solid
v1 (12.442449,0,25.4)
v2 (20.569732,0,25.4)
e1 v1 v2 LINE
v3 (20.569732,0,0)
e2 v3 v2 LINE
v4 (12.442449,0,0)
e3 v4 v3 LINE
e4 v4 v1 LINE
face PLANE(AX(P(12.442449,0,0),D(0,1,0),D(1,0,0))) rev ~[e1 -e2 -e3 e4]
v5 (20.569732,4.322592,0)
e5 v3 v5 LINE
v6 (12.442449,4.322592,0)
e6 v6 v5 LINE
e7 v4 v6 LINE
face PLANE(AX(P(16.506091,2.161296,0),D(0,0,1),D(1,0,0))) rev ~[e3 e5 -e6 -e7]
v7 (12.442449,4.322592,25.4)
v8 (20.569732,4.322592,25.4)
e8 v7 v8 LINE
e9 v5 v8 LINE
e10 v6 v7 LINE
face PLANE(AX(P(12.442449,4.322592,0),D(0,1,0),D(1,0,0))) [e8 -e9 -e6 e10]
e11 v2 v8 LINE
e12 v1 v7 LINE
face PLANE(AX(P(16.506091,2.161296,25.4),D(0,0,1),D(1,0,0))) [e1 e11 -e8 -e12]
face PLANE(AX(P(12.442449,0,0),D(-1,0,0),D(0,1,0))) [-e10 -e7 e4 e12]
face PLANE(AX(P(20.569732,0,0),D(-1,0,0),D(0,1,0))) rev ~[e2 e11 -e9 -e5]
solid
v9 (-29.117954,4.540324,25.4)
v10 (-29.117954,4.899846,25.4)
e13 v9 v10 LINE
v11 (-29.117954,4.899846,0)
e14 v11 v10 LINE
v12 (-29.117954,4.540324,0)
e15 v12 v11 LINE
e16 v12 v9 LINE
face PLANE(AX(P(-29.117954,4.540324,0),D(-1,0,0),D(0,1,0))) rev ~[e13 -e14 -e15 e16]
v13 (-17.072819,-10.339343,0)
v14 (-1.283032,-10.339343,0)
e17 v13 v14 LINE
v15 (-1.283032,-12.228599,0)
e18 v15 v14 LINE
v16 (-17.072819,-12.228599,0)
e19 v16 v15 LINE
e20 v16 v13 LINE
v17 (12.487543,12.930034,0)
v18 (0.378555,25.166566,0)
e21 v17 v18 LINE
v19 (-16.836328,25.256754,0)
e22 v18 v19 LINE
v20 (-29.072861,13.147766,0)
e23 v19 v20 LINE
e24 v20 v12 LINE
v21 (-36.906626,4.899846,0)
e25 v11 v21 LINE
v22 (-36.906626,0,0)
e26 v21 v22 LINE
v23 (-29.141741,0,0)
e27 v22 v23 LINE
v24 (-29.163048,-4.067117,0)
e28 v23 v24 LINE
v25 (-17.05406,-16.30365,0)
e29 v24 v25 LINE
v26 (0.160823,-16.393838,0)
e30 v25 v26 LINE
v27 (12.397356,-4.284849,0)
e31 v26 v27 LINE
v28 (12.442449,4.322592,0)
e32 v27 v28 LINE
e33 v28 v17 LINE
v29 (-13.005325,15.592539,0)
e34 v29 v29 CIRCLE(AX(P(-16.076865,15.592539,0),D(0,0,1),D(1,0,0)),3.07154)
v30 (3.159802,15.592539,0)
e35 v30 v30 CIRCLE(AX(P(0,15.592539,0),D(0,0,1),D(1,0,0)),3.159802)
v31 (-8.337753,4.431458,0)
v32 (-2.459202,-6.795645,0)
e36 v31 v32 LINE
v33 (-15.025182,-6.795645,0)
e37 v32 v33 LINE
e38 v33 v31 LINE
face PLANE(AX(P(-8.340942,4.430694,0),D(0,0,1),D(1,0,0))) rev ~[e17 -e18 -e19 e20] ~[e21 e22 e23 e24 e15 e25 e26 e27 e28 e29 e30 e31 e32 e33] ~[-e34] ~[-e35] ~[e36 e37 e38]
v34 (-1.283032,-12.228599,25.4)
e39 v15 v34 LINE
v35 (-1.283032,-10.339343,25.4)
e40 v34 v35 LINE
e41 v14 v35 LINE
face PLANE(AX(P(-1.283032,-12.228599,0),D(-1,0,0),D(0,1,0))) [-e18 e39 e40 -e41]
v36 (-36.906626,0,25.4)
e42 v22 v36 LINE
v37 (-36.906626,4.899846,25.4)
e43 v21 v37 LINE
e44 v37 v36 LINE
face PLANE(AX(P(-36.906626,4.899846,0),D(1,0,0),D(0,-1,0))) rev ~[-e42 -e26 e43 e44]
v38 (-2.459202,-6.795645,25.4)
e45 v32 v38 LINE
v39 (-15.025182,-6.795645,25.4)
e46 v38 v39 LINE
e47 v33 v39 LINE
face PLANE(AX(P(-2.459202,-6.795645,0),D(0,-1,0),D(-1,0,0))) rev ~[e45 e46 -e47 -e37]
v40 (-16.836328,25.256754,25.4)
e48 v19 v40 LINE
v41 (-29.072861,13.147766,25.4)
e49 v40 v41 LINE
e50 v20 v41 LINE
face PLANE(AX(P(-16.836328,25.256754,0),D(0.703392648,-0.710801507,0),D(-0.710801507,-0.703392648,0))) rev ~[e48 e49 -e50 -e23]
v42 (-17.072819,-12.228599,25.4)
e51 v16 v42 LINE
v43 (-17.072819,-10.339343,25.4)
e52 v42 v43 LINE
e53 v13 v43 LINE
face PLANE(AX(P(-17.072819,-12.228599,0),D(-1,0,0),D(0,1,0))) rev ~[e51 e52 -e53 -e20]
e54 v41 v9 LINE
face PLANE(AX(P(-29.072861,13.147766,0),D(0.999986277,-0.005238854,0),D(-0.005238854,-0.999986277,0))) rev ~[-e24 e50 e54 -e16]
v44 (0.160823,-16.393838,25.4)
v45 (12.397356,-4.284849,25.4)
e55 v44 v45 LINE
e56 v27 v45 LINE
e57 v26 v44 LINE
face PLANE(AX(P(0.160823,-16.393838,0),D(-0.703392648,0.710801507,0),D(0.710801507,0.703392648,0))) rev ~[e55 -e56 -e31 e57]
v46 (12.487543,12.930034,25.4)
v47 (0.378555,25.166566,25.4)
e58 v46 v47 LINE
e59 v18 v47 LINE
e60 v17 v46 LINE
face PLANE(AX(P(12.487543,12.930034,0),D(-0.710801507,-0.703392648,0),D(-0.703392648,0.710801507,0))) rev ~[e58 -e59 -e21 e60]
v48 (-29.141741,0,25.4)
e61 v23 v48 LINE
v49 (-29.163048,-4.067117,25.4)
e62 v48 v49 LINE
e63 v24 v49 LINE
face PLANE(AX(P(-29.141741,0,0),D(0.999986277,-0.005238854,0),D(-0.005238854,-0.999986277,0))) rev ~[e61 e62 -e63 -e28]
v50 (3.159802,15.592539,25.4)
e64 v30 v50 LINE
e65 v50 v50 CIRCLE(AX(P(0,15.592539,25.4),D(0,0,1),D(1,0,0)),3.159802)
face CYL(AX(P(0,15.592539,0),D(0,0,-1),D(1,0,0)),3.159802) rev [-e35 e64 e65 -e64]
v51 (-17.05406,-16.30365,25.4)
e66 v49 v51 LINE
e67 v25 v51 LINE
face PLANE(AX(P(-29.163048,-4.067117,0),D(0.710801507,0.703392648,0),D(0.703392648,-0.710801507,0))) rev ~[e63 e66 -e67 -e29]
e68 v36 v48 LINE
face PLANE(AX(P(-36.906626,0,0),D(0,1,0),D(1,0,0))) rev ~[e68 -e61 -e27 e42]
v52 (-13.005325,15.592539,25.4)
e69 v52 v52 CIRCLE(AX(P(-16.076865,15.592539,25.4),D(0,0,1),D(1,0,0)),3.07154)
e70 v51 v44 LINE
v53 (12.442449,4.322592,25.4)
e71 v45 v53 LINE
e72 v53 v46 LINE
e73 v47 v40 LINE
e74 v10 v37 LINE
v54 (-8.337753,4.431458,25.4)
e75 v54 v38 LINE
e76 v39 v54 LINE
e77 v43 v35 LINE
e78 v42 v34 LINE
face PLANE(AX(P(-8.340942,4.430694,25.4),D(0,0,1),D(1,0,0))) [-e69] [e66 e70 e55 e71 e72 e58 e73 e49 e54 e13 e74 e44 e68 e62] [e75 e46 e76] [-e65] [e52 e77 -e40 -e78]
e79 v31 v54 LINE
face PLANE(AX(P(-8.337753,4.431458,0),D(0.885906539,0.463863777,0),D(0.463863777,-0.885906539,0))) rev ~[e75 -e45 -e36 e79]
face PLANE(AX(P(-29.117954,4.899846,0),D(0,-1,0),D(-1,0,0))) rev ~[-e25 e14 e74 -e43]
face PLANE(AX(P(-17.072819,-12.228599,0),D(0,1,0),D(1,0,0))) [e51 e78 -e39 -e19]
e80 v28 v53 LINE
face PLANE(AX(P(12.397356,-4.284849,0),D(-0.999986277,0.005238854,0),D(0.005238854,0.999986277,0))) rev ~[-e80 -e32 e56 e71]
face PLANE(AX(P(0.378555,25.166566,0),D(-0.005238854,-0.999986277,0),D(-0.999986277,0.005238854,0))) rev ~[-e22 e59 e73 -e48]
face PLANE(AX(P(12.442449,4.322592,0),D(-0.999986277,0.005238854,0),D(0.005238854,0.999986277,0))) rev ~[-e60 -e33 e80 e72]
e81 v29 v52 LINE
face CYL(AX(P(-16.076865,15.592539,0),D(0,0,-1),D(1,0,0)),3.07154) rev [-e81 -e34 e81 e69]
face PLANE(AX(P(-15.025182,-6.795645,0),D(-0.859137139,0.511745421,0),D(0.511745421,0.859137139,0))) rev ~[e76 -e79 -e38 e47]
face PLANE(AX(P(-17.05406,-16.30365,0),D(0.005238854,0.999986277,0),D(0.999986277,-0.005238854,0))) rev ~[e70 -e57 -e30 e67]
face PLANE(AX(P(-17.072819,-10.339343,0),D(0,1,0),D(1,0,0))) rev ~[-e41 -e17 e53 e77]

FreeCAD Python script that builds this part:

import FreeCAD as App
import Part
import Sketcher
from FreeCAD import Vector
Q = App.Units.Quantity

doc = App.newDocument("Part")
body = doc.addObject("PartDesign::Body", "Body")

# Sketch on XY plane
sketch1 = body.newObject("Sketcher::SketchObject", "Sketch")
sketch1.AttachmentSupport = (doc.getObject("XY_Plane"), [""])
sketch1.MapMode = "FlatFace"
sketch1.addGeometry(Part.LineSegment(Vector(12.4, 4.3, 0), Vector(12.4, 0, 0)), False)
sketch1.addGeometry(Part.LineSegment(Vector(12.4, 0, 0), Vector(20.6, 0, 0)), False)
sketch1.addGeometry(Part.LineSegment(Vector(20.6, 0, 0), Vector(20.6, 4.3, 0)), False)
sketch1.addGeometry(Part.LineSegment(Vector(20.6, 4.3, 0), Vector(12.4, 4.3, 0)), False)
sketch1.addConstraint(Sketcher.Constraint("Coincident", 0, 2, 1, 1))
sketch1.addConstraint(Sketcher.Constraint("Coincident", 1, 2, 2, 1))
sketch1.addConstraint(Sketcher.Constraint("Coincident", 2, 2, 3, 1))
sketch1.addConstraint(Sketcher.Constraint("Coincident", 3, 2, 0, 1))
sketch1.addConstraint(Sketcher.Constraint("Vertical", 0))
sketch1.addConstraint(Sketcher.Constraint("Horizontal", 1))
sketch1.addConstraint(Sketcher.Constraint("Vertical", 2))
sketch1.addConstraint(Sketcher.Constraint("Horizontal", 3))
sketch1.addConstraint(Sketcher.Constraint("PointOnObject", 0, 2, -1))
sketch1.addConstraint(Sketcher.Constraint("DistanceX", 1, 1, 1, 2, Q("8.127283 mm")))
sketch1.addConstraint(Sketcher.Constraint("DistanceY", 0, 2, 0, 1, Q("4.322592 mm")))
sketch1.addConstraint(Sketcher.Constraint("DistanceX", -1, 1, 0, 2, Q("12.442449 mm")))
pad1 = body.newObject("PartDesign::Pad", "Pad")
pad1.Profile = sketch1
pad1.Length = Q("1 in")
body2 = doc.addObject("PartDesign::Body", "Body001")

# Sketch on XY plane
sketch2 = body2.newObject("Sketcher::SketchObject", "Sketch001")
sketch2.AttachmentSupport = (doc.getObject("XY_Plane001"), [""])
sketch2.MapMode = "FlatFace"
sketch2.addGeometry(Part.LineSegment(Vector(12.44, 4.32, 0), Vector(12.49, 12.93, 0)), False)
sketch2.addGeometry(Part.LineSegment(Vector(12.49, 12.93, 0), Vector(0.38, 25.17, 0)), False)
sketch2.addGeometry(Part.LineSegment(Vector(0.38, 25.17, 0), Vector(-16.84, 25.26, 0)), False)
sketch2.addGeometry(Part.LineSegment(Vector(-16.84, 25.26, 0), Vector(-29.07, 13.15, 0)), False)
sketch2.addGeometry(Part.LineSegment(Vector(-29.07, 13.15, 0), Vector(-29.12, 4.54, 0)), False)
sketch2.addGeometry(Part.LineSegment(Vector(-29.12, 4.54, 0), Vector(-29.12, 4.9, 0)), False)
sketch2.addGeometry(Part.LineSegment(Vector(-29.12, 4.9, 0), Vector(-36.91, 4.9, 0)), False)
sketch2.addGeometry(Part.LineSegment(Vector(-36.91, 4.9, 0), Vector(-36.91, 0, 0)), False)
sketch2.addGeometry(Part.LineSegment(Vector(-36.91, 0, 0), Vector(-29.14, 0, 0)), False)
sketch2.addGeometry(Part.LineSegment(Vector(-29.14, 0, 0), Vector(-29.16, -4.07, 0)), False)
sketch2.addGeometry(Part.LineSegment(Vector(-29.16, -4.07, 0), Vector(-17.05, -16.3, 0)), False)
sketch2.addGeometry(Part.LineSegment(Vector(-17.05, -16.3, 0), Vector(0.16, -16.39, 0)), False)
sketch2.addGeometry(Part.LineSegment(Vector(0.16, -16.39, 0), Vector(12.4, -4.28, 0)), False)
sketch2.addGeometry(Part.LineSegment(Vector(12.4, -4.28, 0), Vector(12.44, 4.32, 0)), False)
sketch2.addGeometry(Part.LineSegment(Vector(-1.28, -12.23, 0), Vector(-17.07, -12.23, 0)), False)
sketch2.addGeometry(Part.LineSegment(Vector(-17.07, -12.23, 0), Vector(-17.07, -10.34, 0)), False)
sketch2.addGeometry(Part.LineSegment(Vector(-17.07, -10.34, 0), Vector(-1.28, -10.34, 0)), False)
sketch2.addGeometry(Part.LineSegment(Vector(-1.28, -10.34, 0), Vector(-1.28, -12.23, 0)), False)
sketch2.addGeometry(Part.LineSegment(Vector(-8.34, 4.43, 0), Vector(-2.46, -6.8, 0)), False)
sketch2.addGeometry(Part.LineSegment(Vector(-2.46, -6.8, 0), Vector(-15.03, -6.8, 0)), False)
sketch2.addGeometry(Part.LineSegment(Vector(-15.03, -6.8, 0), Vector(-8.34, 4.43, 0)), False)
sketch2.addGeometry(Part.Circle(Vector(-16.08, 15.59, 0), Vector(0, 0, 1), 3.07), False)
sketch2.addGeometry(Part.Circle(Vector(0, 15.59, 0), Vector(0, 0, 1), 3.16), False)
sketch2.addConstraint(Sketcher.Constraint("Coincident", 0, 2, 1, 1))
sketch2.addConstraint(Sketcher.Constraint("Coincident", 1, 2, 2, 1))
sketch2.addConstraint(Sketcher.Constraint("Coincident", 2, 2, 3, 1))
sketch2.addConstraint(Sketcher.Constraint("Coincident", 3, 2, 4, 1))
sketch2.addConstraint(Sketcher.Constraint("Coincident", 4, 2, 5, 1))
sketch2.addConstraint(Sketcher.Constraint("Coincident", 5, 2, 6, 1))
sketch2.addConstraint(Sketcher.Constraint("Coincident", 6, 2, 7, 1))
sketch2.addConstraint(Sketcher.Constraint("Coincident", 7, 2, 8, 1))
sketch2.addConstraint(Sketcher.Constraint("Coincident", 8, 2, 9, 1))
sketch2.addConstraint(Sketcher.Constraint("Coincident", 9, 2, 10, 1))
sketch2.addConstraint(Sketcher.Constraint("Coincident", 10, 2, 11, 1))
sketch2.addConstraint(Sketcher.Constraint("Coincident", 11, 2, 12, 1))
sketch2.addConstraint(Sketcher.Constraint("Coincident", 12, 2, 13, 1))
sketch2.addConstraint(Sketcher.Constraint("Coincident", 13, 2, 0, 1))
sketch2.addConstraint(Sketcher.Constraint("Coincident", 14, 2, 15, 1))
sketch2.addConstraint(Sketcher.Constraint("Coincident", 15, 2, 16, 1))
sketch2.addConstraint(Sketcher.Constraint("Coincident", 16, 2, 17, 1))
sketch2.addConstraint(Sketcher.Constraint("Coincident", 17, 2, 14, 1))
sketch2.addConstraint(Sketcher.Constraint("Coincident", 18, 2, 19, 1))
sketch2.addConstraint(Sketcher.Constraint("Coincident", 19, 2, 20, 1))
sketch2.addConstraint(Sketcher.Constraint("Coincident", 20, 2, 18, 1))
sketch2.addConstraint(Sketcher.Constraint("Vertical", 5))
sketch2.addConstraint(Sketcher.Constraint("Horizontal", 6))
sketch2.addConstraint(Sketcher.Constraint("Vertical", 7))
sketch2.addConstraint(Sketcher.Constraint("Horizontal", 8))
sketch2.addConstraint(Sketcher.Constraint("Horizontal", 14))
sketch2.addConstraint(Sketcher.Constraint("Vertical", 15))
sketch2.addConstraint(Sketcher.Constraint("Horizontal", 16))
sketch2.addConstraint(Sketcher.Constraint("Vertical", 17))
sketch2.addConstraint(Sketcher.Constraint("Horizontal", 19))
sketch2.addConstraint(Sketcher.Constraint("PointOnObject", 22, 3, -2))
sketch2.addConstraint(Sketcher.Constraint("PointOnObject", 7, 2, -1))
sketch2.addConstraint(Sketcher.Constraint("Perpendicular", 0, 2))
sketch2.addConstraint(Sketcher.Constraint("Perpendicular", 1, 3))
sketch2.addConstraint(Sketcher.Constraint("Perpendicular", 2, 4))
sketch2.addConstraint(Sketcher.Constraint("Parallel", 4, 9))
sketch2.addConstraint(Sketcher.Constraint("Perpendicular", 3, 10))
sketch2.addConstraint(Sketcher.Constraint("Perpendicular", 9, 11))
sketch2.addConstraint(Sketcher.Constraint("Perpendicular", 10, 12))
sketch2.addConstraint(Sketcher.Constraint("Perpendicular", 11, 13))
sketch2.addConstraint(Sketcher.Constraint("Horizontal", 21, 3, 22, 3))
sketch2.addConstraint(Sketcher.Constraint("Equal", 1, 2))
sketch2.addConstraint(Sketcher.Constraint("Equal", 2, 3))
sketch2.addConstraint(Sketcher.Constraint("Equal", 0, 4))
sketch2.addConstraint(Sketcher.Constraint("Equal", 3, 10))
sketch2.addConstraint(Sketcher.Constraint("Equal", 10, 11))
sketch2.addConstraint(Sketcher.Constraint("Equal", 11, 12))
sketch2.addConstraint(Sketcher.Constraint("Equal", 4, 13))
sketch2.addConstraint(Sketcher.Constraint("Diameter", 21, Q("6.14308 mm")))
sketch2.addConstraint(Sketcher.Constraint("Diameter", 22, Q("6.319603 mm")))
sketch2.addConstraint(Sketcher.Constraint("DistanceX", 2, 2, 21, 3, Q("0.0299001 in")))
sketch2.addConstraint(Sketcher.Constraint("DistanceX", 6, 2, 6, 1, Q("7.788672 mm")))
sketch2.addConstraint(Sketcher.Constraint("DistanceX", 19, 2, 19, 1, Q("12.56598 mm")))
sketch2.addConstraint(Sketcher.Constraint("DistanceY", 5, 1, 5, 2, Q("0.359522 mm")))
sketch2.addConstraint(Sketcher.Constraint("DistanceY", 14, 2, -1, 1, Q("12.228599 mm")))
sketch2.addConstraint(Sketcher.Constraint("DistanceX", 18, 2, -1, 1, Q("2.459202 mm")))
sketch2.addConstraint(Sketcher.Constraint("DistanceY", 3, 2, 1, 2, Q("12.018801 mm")))
sketch2.addConstraint(Sketcher.Constraint("DistanceX", 6, 2, 2, 2, Q("20.070298 mm")))
sketch2.addConstraint(Sketcher.Constraint("DistanceY", 16, 2, 18, 2, Q("3.543698 mm")))
sketch2.addConstraint(Sketcher.Constraint("DistanceY", 16, 2, 20, 2, Q("14.770802 mm")))
sketch2.addConstraint(Sketcher.Constraint("Distance", 0, Q("8.60756 mm")))
sketch2.addConstraint(Sketcher.Constraint("Distance", 1, Q("17.215119 mm")))
sketch2.addConstraint(Sketcher.Constraint("Distance", 18, Q("12.673011 mm")))
sketch2.addConstraint(Sketcher.Constraint("DistanceX", 14, 2, 14, 1, Q("15.789787 mm")))
sketch2.addConstraint(Sketcher.Constraint("DistanceY", 7, 2, 7, 1, Q("4.899846 mm")))
sketch2.addConstraint(Sketcher.Constraint("DistanceY", 15, 1, 15, 2, Q("1.889255 mm")))
sketch2.addConstraint(Sketcher.Constraint("DistanceY", -1, 1, 21, 3, Q("15.592539 mm")))
sketch2.addConstraint(Sketcher.Constraint("DistanceX", 2, 2, -1, 1, Q("16.836328 mm")))
sketch2.addConstraint(Sketcher.Constraint("DistanceX", 14, 2, -1, 1, Q("17.072819 mm")))
pad2 = body2.newObject("PartDesign::Pad", "Pad001")
pad2.Profile = sketch2
pad2.Length = Q("1 in")

doc.recompute()
